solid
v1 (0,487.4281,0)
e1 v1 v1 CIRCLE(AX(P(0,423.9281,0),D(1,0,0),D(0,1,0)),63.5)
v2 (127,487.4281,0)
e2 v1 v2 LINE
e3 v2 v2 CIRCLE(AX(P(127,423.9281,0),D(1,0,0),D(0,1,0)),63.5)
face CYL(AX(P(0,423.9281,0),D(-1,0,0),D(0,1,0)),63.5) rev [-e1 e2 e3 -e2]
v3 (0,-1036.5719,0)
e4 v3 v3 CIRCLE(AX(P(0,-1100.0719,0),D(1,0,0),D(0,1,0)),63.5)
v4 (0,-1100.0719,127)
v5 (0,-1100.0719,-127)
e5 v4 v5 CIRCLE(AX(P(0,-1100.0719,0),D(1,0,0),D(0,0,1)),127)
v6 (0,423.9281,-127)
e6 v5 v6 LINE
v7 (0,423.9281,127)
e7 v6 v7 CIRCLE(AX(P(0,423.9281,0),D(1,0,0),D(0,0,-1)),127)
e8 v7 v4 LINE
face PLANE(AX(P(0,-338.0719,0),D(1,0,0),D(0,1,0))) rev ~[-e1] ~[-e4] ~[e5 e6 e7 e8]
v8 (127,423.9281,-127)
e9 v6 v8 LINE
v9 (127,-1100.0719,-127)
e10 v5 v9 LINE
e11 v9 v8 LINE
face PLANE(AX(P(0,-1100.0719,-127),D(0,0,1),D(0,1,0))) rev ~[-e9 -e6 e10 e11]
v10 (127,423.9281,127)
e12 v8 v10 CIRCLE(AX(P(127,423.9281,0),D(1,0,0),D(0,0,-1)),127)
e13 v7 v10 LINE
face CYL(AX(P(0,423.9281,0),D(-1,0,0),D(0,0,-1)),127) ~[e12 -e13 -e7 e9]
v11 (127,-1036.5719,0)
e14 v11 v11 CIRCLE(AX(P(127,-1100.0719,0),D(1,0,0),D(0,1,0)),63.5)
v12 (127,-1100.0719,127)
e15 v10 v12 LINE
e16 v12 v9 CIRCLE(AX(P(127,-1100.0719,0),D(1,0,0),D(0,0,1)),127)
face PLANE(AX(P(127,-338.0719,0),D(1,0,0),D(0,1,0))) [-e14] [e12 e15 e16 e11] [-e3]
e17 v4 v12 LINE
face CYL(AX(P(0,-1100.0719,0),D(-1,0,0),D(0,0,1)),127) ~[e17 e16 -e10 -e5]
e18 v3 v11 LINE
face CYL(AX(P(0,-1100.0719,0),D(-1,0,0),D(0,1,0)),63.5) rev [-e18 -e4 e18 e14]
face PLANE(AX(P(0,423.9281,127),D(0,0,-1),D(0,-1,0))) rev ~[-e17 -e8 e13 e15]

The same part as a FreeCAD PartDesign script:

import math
import FreeCAD as App
import Part
import Sketcher

V = App.Vector
Q = App.Units.Quantity

doc = App.newDocument("Part")
body = doc.addObject("PartDesign::Body", "Body")

sketch1 = body.newObject("Sketcher::SketchObject", "Sketch")
sketch1.AttachmentSupport = (doc.getObject("YZ_Plane"), [""])
sketch1.MapMode = "FlatFace"
sketch1.addGeometry([
    Part.LineSegment(V(424, 127, 0), V(-1100, 127, 0)),
    Part.ArcOfCircle(Part.Circle(V(-1100, 0, 0), V(0, 0, 1), 127), math.radians(90), math.radians(270)),
    Part.LineSegment(V(-1100, -127, 0), V(424, -127, 0)),
    Part.ArcOfCircle(Part.Circle(V(424, 0, 0), V(0, 0, 1), 127), math.radians(-90), math.radians(90)),
    Part.Circle(V(-1100, 0, 0), V(0, 0, 1), 64),
    Part.Circle(V(424, 0, 0), V(0, 0, 1), 64),
], False)
sketch1.addConstraint([
    Sketcher.Constraint("Tangent", 0, 2, 1, 1),
    Sketcher.Constraint("Tangent", 1, 2, 2, 1),
    Sketcher.Constraint("Tangent", 2, 2, 3, 1),
    Sketcher.Constraint("Tangent", 3, 2, 0, 1),
    Sketcher.Constraint("Horizontal", 0),
    Sketcher.Constraint("Horizontal", 2),
    Sketcher.Constraint("Coincident", 4, 3, 1, 3),
    Sketcher.Constraint("Coincident", 5, 3, 3, 3),
    Sketcher.Constraint("Equal", 4, 5),
    Sketcher.Constraint("PointOnObject", 1, 3, -1),
    Sketcher.Constraint("Diameter", 4, Q("5 in")),
    Sketcher.Constraint("Radius", 1, Q("5 in")),
    Sketcher.Constraint("DistanceX", 0, 2, 0, 1, Q("60 in")),
    Sketcher.Constraint("DistanceX", 1, 3, -1, 1, Q("1100.0719 mm")),
])
pad1 = body.newObject("PartDesign::Pad", "Pad")
pad1.Profile = sketch1
pad1.Length = Q("5 in")

doc.recompute()
